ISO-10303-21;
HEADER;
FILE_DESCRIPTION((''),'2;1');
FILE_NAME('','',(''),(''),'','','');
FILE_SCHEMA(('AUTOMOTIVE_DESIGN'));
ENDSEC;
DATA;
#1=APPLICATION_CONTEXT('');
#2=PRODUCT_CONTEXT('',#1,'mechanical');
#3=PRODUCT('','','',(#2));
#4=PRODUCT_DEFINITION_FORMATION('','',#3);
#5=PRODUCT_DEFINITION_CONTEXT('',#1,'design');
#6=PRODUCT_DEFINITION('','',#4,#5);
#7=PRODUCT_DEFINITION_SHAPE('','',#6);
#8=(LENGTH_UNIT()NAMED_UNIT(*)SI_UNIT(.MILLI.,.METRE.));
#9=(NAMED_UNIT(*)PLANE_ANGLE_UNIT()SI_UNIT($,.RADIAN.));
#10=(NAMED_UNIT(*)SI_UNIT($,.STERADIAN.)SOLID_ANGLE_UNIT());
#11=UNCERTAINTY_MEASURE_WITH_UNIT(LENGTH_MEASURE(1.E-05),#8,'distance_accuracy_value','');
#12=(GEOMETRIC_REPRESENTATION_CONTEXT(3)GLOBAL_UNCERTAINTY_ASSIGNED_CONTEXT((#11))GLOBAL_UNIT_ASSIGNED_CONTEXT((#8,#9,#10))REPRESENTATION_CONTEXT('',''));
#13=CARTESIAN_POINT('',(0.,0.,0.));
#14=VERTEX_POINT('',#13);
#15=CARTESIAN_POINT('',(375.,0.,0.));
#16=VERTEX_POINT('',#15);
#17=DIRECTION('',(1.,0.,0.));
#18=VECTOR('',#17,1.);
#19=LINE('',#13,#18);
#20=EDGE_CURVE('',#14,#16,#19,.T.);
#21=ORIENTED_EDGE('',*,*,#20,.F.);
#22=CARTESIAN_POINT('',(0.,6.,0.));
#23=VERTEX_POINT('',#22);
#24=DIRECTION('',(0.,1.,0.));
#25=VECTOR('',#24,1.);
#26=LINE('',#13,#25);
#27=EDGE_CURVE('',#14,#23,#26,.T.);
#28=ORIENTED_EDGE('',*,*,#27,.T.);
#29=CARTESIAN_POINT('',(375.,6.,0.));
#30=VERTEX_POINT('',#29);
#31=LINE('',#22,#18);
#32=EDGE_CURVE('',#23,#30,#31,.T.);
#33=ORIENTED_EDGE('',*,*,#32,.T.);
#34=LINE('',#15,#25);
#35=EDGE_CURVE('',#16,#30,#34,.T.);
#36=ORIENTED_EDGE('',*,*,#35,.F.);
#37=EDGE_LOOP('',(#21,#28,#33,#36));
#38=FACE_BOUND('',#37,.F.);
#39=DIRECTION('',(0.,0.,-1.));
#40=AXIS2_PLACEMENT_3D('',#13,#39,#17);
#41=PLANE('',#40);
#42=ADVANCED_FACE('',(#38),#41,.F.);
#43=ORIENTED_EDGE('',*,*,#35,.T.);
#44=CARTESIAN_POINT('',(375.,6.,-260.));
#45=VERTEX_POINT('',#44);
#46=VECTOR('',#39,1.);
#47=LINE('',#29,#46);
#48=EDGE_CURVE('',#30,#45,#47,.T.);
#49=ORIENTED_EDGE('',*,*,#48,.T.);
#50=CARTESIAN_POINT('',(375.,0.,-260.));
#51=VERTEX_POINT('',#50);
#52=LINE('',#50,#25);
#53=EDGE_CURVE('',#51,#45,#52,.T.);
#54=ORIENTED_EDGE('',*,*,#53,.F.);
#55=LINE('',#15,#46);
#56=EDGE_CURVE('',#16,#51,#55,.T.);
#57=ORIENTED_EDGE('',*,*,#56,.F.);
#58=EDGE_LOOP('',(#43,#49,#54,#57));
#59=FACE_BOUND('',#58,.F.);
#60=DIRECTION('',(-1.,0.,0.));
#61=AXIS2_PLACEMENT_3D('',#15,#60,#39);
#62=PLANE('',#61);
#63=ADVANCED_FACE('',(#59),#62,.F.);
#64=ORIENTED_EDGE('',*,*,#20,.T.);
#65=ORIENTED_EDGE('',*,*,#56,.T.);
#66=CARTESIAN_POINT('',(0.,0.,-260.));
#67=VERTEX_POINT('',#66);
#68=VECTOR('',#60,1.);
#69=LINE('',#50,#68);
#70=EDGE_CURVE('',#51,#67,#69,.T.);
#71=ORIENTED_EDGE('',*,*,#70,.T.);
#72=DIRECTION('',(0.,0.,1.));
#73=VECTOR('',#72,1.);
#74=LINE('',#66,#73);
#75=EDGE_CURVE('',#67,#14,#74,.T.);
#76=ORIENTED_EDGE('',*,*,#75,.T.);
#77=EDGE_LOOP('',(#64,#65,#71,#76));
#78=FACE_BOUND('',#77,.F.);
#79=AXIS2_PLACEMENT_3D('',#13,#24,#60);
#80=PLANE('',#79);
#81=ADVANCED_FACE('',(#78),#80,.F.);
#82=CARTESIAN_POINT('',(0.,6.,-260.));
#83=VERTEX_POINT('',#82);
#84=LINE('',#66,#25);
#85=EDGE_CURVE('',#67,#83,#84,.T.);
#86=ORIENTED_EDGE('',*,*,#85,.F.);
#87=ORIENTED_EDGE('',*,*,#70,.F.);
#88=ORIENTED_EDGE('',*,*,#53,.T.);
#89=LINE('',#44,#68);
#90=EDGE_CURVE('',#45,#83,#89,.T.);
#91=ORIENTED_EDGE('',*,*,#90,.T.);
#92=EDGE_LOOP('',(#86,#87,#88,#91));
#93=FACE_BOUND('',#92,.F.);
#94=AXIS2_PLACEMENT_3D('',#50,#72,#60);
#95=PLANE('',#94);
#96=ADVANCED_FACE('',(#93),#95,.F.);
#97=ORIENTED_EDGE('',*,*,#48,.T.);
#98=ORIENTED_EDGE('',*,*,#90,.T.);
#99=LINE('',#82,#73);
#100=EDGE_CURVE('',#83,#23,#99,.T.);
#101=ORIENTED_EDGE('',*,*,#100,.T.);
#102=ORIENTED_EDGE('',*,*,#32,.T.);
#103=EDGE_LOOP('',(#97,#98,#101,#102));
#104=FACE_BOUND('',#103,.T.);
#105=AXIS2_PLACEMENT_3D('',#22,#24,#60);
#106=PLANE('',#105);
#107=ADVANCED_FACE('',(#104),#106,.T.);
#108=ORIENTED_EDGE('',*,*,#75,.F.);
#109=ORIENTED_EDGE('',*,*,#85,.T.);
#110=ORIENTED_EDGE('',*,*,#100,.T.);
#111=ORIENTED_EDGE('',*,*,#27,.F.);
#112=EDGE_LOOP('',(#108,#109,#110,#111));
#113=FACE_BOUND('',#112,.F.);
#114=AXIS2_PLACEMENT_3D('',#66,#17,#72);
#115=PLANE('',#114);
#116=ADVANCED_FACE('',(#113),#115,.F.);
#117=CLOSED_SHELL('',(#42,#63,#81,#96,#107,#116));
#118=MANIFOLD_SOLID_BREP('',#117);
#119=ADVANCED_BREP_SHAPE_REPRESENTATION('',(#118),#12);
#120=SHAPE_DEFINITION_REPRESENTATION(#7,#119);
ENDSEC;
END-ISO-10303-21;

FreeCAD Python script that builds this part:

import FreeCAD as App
import Part
import Sketcher

V = App.Vector
Q = App.Units.Quantity

doc = App.newDocument("Part")
body = doc.addObject("PartDesign::Body", "Body")

# Sketch on XZ plane
sketch1 = doc.addObject("Sketcher::SketchObject", "Sketch")
body.addObject(sketch1)
sketch1.AttachmentSupport = (doc.XZ_Plane, [""])
sketch1.MapMode = "FlatFace"
sketch1.addGeometry([
    Part.LineSegment(V(0, -260, 0), V(0, 0, 0)),
    Part.LineSegment(V(0, 0, 0), V(375, 0, 0)),
    Part.LineSegment(V(375, 0, 0), V(375, -260, 0)),
    Part.LineSegment(V(375, -260, 0), V(0, -260, 0)),
], False)
sketch1.addConstraint([
    Sketcher.Constraint("Coincident", 0, 2, 1, 1),
    Sketcher.Constraint("Coincident", 1, 2, 2, 1),
    Sketcher.Constraint("Coincident", 2, 2, 3, 1),
    Sketcher.Constraint("Coincident", 3, 2, 0, 1),
    Sketcher.Constraint("Vertical", 0),
    Sketcher.Constraint("Horizontal", 1),
    Sketcher.Constraint("Vertical", 2),
    Sketcher.Constraint("Horizontal", 3),
    Sketcher.Constraint("Coincident", 0, 2, -1, 1),
    Sketcher.Constraint("DistanceX", 1, 1, 1, 2, Q("375 mm")),
    Sketcher.Constraint("DistanceY", 0, 1, 0, 2, Q("260 mm")),
])
pad1 = doc.addObject("PartDesign::Pad", "Pad")
body.addObject(pad1)
pad1.Profile = sketch1
pad1.Length = 6
pad1.Reversed = True

doc.recompute()
